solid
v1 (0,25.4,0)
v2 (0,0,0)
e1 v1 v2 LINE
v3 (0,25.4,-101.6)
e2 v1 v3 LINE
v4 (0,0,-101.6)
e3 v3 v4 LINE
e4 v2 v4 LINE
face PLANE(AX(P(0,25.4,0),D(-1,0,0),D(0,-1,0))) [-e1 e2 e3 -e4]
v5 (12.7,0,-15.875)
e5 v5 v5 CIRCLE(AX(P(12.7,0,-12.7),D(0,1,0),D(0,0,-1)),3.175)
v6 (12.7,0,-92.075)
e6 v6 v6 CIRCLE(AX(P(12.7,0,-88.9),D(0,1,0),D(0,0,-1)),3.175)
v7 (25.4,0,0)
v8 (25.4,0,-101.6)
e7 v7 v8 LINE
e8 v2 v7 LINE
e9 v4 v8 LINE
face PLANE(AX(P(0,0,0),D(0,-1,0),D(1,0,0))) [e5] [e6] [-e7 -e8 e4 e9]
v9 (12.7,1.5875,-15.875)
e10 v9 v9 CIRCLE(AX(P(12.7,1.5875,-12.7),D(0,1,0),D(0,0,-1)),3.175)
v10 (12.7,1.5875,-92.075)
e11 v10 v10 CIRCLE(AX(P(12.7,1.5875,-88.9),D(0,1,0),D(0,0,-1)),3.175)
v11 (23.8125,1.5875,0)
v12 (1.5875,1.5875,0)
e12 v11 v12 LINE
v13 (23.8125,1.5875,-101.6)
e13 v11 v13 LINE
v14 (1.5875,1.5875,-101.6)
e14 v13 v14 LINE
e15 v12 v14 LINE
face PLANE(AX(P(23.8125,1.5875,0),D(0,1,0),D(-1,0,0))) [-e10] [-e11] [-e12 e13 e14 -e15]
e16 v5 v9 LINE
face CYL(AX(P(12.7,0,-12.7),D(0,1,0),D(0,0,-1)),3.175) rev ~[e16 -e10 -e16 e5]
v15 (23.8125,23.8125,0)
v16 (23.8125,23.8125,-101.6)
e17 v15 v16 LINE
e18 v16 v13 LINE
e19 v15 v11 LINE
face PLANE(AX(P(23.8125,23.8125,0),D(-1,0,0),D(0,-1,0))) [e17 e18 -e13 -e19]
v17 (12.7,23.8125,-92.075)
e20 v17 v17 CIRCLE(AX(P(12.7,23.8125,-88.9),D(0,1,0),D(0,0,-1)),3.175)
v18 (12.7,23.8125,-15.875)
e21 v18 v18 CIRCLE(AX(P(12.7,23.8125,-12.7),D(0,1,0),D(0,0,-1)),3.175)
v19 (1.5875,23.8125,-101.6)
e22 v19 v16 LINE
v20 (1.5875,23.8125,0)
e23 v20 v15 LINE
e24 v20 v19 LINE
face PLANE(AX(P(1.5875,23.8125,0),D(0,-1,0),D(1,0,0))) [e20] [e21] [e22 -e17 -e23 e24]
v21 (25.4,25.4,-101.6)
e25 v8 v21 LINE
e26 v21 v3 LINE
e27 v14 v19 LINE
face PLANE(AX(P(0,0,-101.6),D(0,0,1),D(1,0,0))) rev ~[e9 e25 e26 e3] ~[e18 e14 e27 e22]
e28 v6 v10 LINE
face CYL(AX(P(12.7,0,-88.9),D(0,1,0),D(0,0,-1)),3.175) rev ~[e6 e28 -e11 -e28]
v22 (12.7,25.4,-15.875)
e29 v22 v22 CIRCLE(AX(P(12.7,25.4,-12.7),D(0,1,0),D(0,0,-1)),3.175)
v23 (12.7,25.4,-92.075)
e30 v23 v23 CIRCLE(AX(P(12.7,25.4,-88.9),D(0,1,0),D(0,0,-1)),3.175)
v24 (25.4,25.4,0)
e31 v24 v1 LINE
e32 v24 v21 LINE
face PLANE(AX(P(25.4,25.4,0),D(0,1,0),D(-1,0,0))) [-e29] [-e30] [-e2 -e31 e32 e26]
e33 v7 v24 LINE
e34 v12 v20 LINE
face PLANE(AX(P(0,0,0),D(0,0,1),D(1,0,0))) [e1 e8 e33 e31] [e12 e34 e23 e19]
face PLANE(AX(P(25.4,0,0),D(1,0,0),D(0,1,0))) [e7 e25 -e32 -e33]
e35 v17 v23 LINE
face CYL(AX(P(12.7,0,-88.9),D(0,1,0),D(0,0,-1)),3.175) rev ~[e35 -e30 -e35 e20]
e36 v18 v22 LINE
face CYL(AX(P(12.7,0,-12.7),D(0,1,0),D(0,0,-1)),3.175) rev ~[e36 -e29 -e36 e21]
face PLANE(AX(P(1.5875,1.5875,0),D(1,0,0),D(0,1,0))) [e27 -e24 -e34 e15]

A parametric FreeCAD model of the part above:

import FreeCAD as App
import Part
import Sketcher

V = App.Vector
Q = App.Units.Quantity


def add_polygon(sketch, points):
    """Adds a closed chain of lines whose ends are joined by coincident constraints."""
    first, n = sketch.GeometryCount, len(points)
    for a, b in zip(points, points[1:] + points[:1]):
        sketch.addGeometry(Part.LineSegment(App.Vector(*a, 0), App.Vector(*b, 0)), False)
    for i in range(n):
        sketch.addConstraint(Sketcher.Constraint("Coincident", first + i, 2, first + (i + 1) % n, 1))

doc = App.newDocument("Part")
body = doc.addObject("PartDesign::Body", "Body")

# Sketch on XY plane
sketch1 = doc.addObject("Sketcher::SketchObject", "Sketch")
body.addObject(sketch1)
sketch1.AttachmentSupport = (doc.XY_Plane, [""])
sketch1.MapMode = "FlatFace"
add_polygon(sketch1, [(0, 25), (0, 0), (25, 0), (25, 25)])  # lines 0-3
add_polygon(sketch1, [(2, 2), (2, 24), (24, 24), (24, 2)])  # lines 4-7
sketch1.addConstraint([
    Sketcher.Constraint("Vertical", 0),
    Sketcher.Constraint("Horizontal", 1),
    Sketcher.Constraint("Vertical", 2),
    Sketcher.Constraint("Horizontal", 3),
    Sketcher.Constraint("Vertical", 4),
    Sketcher.Constraint("Horizontal", 5),
    Sketcher.Constraint("Vertical", 6),
    Sketcher.Constraint("Horizontal", 7),
    Sketcher.Constraint("Coincident", 0, 2, -1, 1),
    Sketcher.Constraint("Equal", 3, 0),
    Sketcher.Constraint("Equal", 7, 4),
    Sketcher.Constraint("DistanceX", 1, 1, 1, 2, Q("1 in")),
    Sketcher.Constraint("DistanceX", -1, 1, 4, 2, Q("0.0625 in")),
    Sketcher.Constraint("DistanceY", -1, 1, 6, 2, Q("0.0625 in")),
    Sketcher.Constraint("DistanceY", 4, 2, 3, 2, Q("0.0625 in")),
])
pad1 = doc.addObject("PartDesign::Pad", "Pad")
body.addObject(pad1)
pad1.Profile = sketch1
pad1.Length = Q("4 in")
pad1.Reversed = True

# Sketch on XZ plane
sketch2 = doc.addObject("Sketcher::SketchObject", "Sketch001")
body.addObject(sketch2)
sketch2.AttachmentSupport = (doc.XZ_Plane, [""])
sketch2.MapMode = "FlatFace"
sketch2.addGeometry([
    Part.Circle(V(12.7, -12.7, 0), V(0, 0, 1), 3.2),
    Part.Circle(V(12.7, -88.9, 0), V(0, 0, 1), 3.2),
], False)
sketch2.addConstraint([
    Sketcher.Constraint("Equal", 0, 1),
    Sketcher.Constraint("Vertical", 0, 3, 1, 3),
    Sketcher.Constraint("Diameter", 0, Q("0.25 in")),
    Sketcher.Constraint("DistanceY", 1, 3, 0, 3, Q("3 in")),
    Sketcher.Constraint("DistanceX", -1, 1, 0, 3, Q("0.5 in")),
    Sketcher.Constraint("DistanceY", 0, 3, -1, 1, Q("0.5 in")),
])
doc.recompute()
hole = doc.addObject("PartDesign::Hole", "Hole")
body.addObject(hole)
hole.Profile = sketch2
hole.ThreadType = "None"
hole.Diameter = Q("0.25 in")
hole.DepthType = "Dimension"
hole.Depth = Q("1 in")
hole.DrillPoint = "Angled"
hole.DrillPointAngle = 118

doc.recompute()
